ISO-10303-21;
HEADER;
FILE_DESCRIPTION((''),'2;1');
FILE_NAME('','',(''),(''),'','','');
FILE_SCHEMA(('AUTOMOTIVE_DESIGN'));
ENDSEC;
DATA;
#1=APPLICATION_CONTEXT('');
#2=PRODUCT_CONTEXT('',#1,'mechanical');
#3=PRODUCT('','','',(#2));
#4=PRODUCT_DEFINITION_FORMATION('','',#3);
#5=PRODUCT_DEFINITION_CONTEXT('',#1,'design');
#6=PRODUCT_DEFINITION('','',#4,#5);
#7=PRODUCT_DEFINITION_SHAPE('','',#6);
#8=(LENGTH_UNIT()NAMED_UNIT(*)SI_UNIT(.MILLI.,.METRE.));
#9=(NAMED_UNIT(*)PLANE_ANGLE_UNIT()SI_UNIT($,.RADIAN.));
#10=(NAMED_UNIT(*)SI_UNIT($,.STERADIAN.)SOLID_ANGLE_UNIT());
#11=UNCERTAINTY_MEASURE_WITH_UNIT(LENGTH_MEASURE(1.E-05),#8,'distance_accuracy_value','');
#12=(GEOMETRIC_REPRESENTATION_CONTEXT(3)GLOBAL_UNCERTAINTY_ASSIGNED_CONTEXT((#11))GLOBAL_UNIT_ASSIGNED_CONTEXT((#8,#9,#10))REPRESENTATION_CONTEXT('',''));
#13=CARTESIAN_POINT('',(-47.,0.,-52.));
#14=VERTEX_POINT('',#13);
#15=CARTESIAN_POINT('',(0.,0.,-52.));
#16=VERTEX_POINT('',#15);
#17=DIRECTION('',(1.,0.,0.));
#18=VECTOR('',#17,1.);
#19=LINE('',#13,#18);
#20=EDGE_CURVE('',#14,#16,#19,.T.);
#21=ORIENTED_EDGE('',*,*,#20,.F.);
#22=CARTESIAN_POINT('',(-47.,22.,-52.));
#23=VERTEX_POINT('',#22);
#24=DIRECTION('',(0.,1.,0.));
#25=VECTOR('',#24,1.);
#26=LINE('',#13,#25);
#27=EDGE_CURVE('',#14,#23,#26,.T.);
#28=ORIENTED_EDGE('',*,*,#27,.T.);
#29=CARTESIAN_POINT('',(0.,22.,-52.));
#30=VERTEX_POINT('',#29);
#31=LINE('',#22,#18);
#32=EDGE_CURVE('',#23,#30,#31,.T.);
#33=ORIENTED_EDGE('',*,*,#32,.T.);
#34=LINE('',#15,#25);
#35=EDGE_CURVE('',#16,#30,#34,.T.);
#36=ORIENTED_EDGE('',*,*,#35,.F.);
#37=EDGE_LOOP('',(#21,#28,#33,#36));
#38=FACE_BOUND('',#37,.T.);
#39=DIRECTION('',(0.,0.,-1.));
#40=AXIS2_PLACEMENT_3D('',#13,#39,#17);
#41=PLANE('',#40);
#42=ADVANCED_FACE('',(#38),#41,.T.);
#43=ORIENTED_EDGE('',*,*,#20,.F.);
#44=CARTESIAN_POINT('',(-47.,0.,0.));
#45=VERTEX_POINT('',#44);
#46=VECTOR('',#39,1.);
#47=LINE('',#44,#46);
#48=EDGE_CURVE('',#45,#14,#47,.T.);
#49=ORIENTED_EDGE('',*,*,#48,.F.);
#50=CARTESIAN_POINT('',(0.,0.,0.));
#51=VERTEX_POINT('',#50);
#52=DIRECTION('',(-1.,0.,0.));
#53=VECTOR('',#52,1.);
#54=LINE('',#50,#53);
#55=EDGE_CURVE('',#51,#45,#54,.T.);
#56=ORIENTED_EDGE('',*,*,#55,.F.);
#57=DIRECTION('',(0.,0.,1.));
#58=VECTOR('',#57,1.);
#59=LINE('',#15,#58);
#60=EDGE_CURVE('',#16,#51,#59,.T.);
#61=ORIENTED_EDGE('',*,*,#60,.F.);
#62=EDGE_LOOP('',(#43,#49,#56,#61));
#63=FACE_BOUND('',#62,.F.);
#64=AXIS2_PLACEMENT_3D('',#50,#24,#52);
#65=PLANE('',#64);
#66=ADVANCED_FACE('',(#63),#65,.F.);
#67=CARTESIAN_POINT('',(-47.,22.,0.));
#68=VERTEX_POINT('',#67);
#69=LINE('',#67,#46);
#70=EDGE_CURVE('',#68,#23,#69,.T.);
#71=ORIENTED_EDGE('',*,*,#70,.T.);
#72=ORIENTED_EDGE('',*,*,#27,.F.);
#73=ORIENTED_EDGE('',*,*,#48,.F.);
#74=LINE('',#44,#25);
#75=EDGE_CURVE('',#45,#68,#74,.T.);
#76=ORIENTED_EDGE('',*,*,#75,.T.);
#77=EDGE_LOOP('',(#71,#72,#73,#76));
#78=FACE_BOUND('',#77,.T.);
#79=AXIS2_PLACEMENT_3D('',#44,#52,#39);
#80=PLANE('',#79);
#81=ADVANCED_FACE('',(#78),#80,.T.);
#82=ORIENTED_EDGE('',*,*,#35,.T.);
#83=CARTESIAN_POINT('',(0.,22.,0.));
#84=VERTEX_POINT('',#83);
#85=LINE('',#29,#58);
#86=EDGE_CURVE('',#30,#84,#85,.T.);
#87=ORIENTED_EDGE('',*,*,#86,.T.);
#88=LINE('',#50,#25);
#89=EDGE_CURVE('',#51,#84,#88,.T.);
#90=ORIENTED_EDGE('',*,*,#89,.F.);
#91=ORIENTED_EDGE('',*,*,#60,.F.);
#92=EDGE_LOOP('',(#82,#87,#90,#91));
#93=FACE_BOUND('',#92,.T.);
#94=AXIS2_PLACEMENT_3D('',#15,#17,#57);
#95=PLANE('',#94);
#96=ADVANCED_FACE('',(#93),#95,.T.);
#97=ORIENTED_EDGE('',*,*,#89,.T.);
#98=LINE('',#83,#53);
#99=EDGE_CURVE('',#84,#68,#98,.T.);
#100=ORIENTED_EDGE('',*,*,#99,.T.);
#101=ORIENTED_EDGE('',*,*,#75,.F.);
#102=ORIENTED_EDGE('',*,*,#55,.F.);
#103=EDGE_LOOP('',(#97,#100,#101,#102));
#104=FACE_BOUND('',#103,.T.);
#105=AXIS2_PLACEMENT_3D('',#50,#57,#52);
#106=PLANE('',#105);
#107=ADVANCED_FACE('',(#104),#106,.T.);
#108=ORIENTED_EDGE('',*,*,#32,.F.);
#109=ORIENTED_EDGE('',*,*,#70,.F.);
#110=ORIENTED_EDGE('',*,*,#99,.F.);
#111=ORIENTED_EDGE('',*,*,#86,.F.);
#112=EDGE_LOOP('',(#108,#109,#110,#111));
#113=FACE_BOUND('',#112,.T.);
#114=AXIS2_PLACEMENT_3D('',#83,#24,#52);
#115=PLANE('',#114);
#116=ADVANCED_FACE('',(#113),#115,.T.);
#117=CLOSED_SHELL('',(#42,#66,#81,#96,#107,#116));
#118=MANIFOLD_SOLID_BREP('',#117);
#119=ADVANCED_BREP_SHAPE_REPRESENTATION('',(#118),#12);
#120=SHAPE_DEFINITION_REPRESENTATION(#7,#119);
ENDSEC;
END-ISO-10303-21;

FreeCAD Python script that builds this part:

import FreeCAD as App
import Part
import Sketcher

V = App.Vector
Q = App.Units.Quantity

doc = App.newDocument("Part")
params = doc.addObject("Spreadsheet::Sheet", "Params")
for row, (alias, value) in enumerate([
    ("sketch1_width", "47 mm"),
    ("sketch1_height", "52 mm"),
    ("pad1_length", "22 mm"),
], start=1):
    params.set(f"A{row}", alias)
    params.set(f"B{row}", "=" + value)
    params.setAlias(f"B{row}", alias)

body = doc.addObject("PartDesign::Body", "Body")

sketch1 = body.newObject("Sketcher::SketchObject", "Sketch")
sketch1.AttachmentSupport = (doc.getObject("XZ_Plane"), [""])
sketch1.MapMode = "FlatFace"
sketch1.addGeometry([
    Part.LineSegment(V(-47, 0, 0), V(0, 0, 0)),
    Part.LineSegment(V(0, 0, 0), V(0, -52, 0)),
    Part.LineSegment(V(0, -52, 0), V(-47, -52, 0)),
    Part.LineSegment(V(-47, -52, 0), V(-47, 0, 0)),
], False)
sketch1.addConstraint([
    Sketcher.Constraint("Coincident", 0, 2, 1, 1),
    Sketcher.Constraint("Coincident", 1, 2, 2, 1),
    Sketcher.Constraint("Coincident", 2, 2, 3, 1),
    Sketcher.Constraint("Coincident", 3, 2, 0, 1),
    Sketcher.Constraint("Horizontal", 0),
    Sketcher.Constraint("Vertical", 1),
    Sketcher.Constraint("Horizontal", 2),
    Sketcher.Constraint("Vertical", 3),
    Sketcher.Constraint("Coincident", 0, 2, -1, 1),
    Sketcher.Constraint("DistanceX", 0, 1, 0, 2, Q("47 mm")),
    Sketcher.Constraint("DistanceY", 1, 2, 1, 1, Q("52 mm")),
])
sketch1.setExpression("Constraints[9]", "Params.sketch1_width")
sketch1.setExpression("Constraints[10]", "Params.sketch1_height")
pad1 = body.newObject("PartDesign::Pad", "Pad")
pad1.Profile = sketch1
pad1.setExpression("Length", "Params.pad1_length")
pad1.Reversed = True

doc.recompute()
